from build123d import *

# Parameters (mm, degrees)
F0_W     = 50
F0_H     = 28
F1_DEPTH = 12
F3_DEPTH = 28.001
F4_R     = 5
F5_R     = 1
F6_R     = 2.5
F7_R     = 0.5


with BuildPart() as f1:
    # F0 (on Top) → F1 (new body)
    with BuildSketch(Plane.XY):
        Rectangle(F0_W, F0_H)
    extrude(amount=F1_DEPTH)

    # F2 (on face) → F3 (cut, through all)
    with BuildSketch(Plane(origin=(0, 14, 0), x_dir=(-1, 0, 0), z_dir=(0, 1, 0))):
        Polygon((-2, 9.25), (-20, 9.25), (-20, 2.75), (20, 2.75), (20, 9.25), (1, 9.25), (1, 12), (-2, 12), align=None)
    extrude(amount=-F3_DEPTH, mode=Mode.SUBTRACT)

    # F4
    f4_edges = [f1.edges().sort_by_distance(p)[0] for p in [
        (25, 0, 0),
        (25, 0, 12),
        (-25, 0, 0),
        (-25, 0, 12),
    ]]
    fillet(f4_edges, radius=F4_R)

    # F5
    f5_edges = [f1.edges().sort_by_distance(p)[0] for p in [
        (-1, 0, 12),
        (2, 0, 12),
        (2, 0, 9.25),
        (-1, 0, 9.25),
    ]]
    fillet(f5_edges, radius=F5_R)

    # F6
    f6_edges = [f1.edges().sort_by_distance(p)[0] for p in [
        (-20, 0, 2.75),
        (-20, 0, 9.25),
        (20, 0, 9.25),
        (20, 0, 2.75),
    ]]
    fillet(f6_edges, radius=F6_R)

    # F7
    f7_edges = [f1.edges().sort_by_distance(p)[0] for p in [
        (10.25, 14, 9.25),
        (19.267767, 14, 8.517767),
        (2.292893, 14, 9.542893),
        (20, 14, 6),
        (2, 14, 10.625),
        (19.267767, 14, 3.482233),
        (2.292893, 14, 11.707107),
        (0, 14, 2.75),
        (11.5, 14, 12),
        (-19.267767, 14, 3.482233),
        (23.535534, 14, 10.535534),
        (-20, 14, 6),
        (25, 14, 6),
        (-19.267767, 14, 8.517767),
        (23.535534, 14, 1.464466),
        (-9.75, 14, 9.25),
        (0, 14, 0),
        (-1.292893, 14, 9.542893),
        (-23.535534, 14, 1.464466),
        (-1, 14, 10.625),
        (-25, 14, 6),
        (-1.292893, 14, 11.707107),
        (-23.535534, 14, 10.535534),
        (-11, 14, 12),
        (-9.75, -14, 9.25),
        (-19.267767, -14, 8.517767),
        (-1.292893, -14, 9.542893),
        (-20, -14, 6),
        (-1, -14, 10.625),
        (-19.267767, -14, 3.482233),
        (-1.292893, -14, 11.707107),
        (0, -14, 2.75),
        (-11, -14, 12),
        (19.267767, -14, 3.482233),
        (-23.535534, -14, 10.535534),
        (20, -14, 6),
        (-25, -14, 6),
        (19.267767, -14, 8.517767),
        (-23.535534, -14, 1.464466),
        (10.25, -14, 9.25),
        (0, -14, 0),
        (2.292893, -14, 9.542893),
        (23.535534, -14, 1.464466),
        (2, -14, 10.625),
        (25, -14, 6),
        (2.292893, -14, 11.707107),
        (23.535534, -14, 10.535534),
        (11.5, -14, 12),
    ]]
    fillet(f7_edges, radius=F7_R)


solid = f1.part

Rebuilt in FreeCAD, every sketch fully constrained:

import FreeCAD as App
import Part
import Sketcher
from FreeCAD import Vector


def edges_at(feature, points):
    """Names of the edges that pass closest to the given points."""
    edges = feature.Shape.Edges
    near = lambda p: min(range(len(edges)), key=lambda i: edges[i].distToShape(Part.Vertex(*p))[0])
    return sorted({f"Edge{near(p) + 1}" for p in points})

doc = App.newDocument("Part")
body = doc.addObject("PartDesign::Body", "Body")

sketch1 = body.newObject("Sketcher::SketchObject", "Sketch")
sketch1.AttachmentSupport = (doc.getObject("XY_Plane"), [""])
sketch1.MapMode = "FlatFace"
sketch1.addGeometry(Part.LineSegment(Vector(-25, 14, 0), Vector(-25, -14, 0)), False)
sketch1.addGeometry(Part.LineSegment(Vector(-25, -14, 0), Vector(25, -14, 0)), False)
sketch1.addGeometry(Part.LineSegment(Vector(25, -14, 0), Vector(25, 14, 0)), False)
sketch1.addGeometry(Part.LineSegment(Vector(25, 14, 0), Vector(-25, 14, 0)), False)
sketch1.addConstraint(Sketcher.Constraint("Coincident", 0, 2, 1, 1))
sketch1.addConstraint(Sketcher.Constraint("Coincident", 1, 2, 2, 1))
sketch1.addConstraint(Sketcher.Constraint("Coincident", 2, 2, 3, 1))
sketch1.addConstraint(Sketcher.Constraint("Coincident", 3, 2, 0, 1))
sketch1.addConstraint(Sketcher.Constraint("Vertical", 0))
sketch1.addConstraint(Sketcher.Constraint("Horizontal", 1))
sketch1.addConstraint(Sketcher.Constraint("Vertical", 2))
sketch1.addConstraint(Sketcher.Constraint("Horizontal", 3))
sketch1.addConstraint(Sketcher.Constraint("Symmetric", 0, 2, 2, 2, -1, 1))
sketch1.addConstraint(Sketcher.Constraint("DistanceX", 1, 1, 1, 2, 50.0))
sketch1.addConstraint(Sketcher.Constraint("DistanceY", 0, 2, 0, 1, 28.0))
pad1 = body.newObject("PartDesign::Pad", "Pad")
pad1.Profile = sketch1
pad1.Length = 12

sketch2 = body.newObject("Sketcher::SketchObject", "Sketch001")
sketch2.AttachmentSupport = (doc.getObject("XZ_Plane"), [""])
sketch2.MapMode = "FlatFace"
sketch2.AttachmentOffset = App.Placement(Vector(0, 0, -14), App.Rotation())
sketch2.addGeometry(Part.LineSegment(Vector(2, 9.25, 0), Vector(20, 9.25, 0)), False)
sketch2.addGeometry(Part.LineSegment(Vector(20, 9.25, 0), Vector(20, 2.75, 0)), False)
sketch2.addGeometry(Part.LineSegment(Vector(20, 2.75, 0), Vector(-20, 2.75, 0)), False)
sketch2.addGeometry(Part.LineSegment(Vector(-20, 2.75, 0), Vector(-20, 9.25, 0)), False)
sketch2.addGeometry(Part.LineSegment(Vector(-20, 9.25, 0), Vector(-1, 9.25, 0)), False)
sketch2.addGeometry(Part.LineSegment(Vector(-1, 9.25, 0), Vector(-1, 12, 0)), False)
sketch2.addGeometry(Part.LineSegment(Vector(-1, 12, 0), Vector(2, 12, 0)), False)
sketch2.addGeometry(Part.LineSegment(Vector(2, 12, 0), Vector(2, 9.25, 0)), False)
sketch2.addConstraint(Sketcher.Constraint("Coincident", 0, 2, 1, 1))
sketch2.addConstraint(Sketcher.Constraint("Coincident", 1, 2, 2, 1))
sketch2.addConstraint(Sketcher.Constraint("Coincident", 2, 2, 3, 1))
sketch2.addConstraint(Sketcher.Constraint("Coincident", 3, 2, 4, 1))
sketch2.addConstraint(Sketcher.Constraint("Coincident", 4, 2, 5, 1))
sketch2.addConstraint(Sketcher.Constraint("Coincident", 5, 2, 6, 1))
sketch2.addConstraint(Sketcher.Constraint("Coincident", 6, 2, 7, 1))
sketch2.addConstraint(Sketcher.Constraint("Coincident", 7, 2, 0, 1))
sketch2.addConstraint(Sketcher.Constraint("Horizontal", 0))
sketch2.addConstraint(Sketcher.Constraint("Vertical", 1))
sketch2.addConstraint(Sketcher.Constraint("Horizontal", 2))
sketch2.addConstraint(Sketcher.Constraint("Vertical", 3))
sketch2.addConstraint(Sketcher.Constraint("Horizontal", 4))
sketch2.addConstraint(Sketcher.Constraint("Vertical", 5))
sketch2.addConstraint(Sketcher.Constraint("Horizontal", 6))
sketch2.addConstraint(Sketcher.Constraint("Vertical", 7))
sketch2.addConstraint(Sketcher.Constraint("Symmetric", 0, 2, 3, 2, -2))
sketch2.addConstraint(Sketcher.Constraint("DistanceX", 0, 1, 0, 2, 18.0))
sketch2.addConstraint(Sketcher.Constraint("DistanceX", 2, 2, 2, 1, 40.0))
sketch2.addConstraint(Sketcher.Constraint("DistanceX", 4, 1, 4, 2, 19.0))
sketch2.addConstraint(Sketcher.Constraint("DistanceY", 1, 2, 1, 1, 6.5))
sketch2.addConstraint(Sketcher.Constraint("DistanceY", -1, 1, 5, 2, 12.0))
sketch2.addConstraint(Sketcher.Constraint("DistanceY", 5, 1, 5, 2, 2.75))
pocket1 = body.newObject("PartDesign::Pocket", "Pocket")
pocket1.Profile = sketch2
pocket1.Type = "ThroughAll"
pocket1.Reversed = True
doc.recompute()

fillet = body.newObject("PartDesign::Fillet", "Fillet")
fillet.Base = (pocket1, edges_at(pocket1, [
    (25, 0, 0),
    (25, 0, 12),
    (-25, 0, 0),
    (-25, 0, 12),
]))
fillet.Radius = 5
doc.recompute()

fillet2 = body.newObject("PartDesign::Fillet", "Fillet001")
fillet2.Base = (fillet, edges_at(fillet, [
    (-1, 0, 12),
    (2, 0, 12),
    (2, 0, 9.25),
    (-1, 0, 9.25),
]))
fillet2.Radius = 1
doc.recompute()

fillet3 = body.newObject("PartDesign::Fillet", "Fillet002")
fillet3.Base = (fillet2, edges_at(fillet2, [
    (-20, 0, 2.75),
    (-20, 0, 9.25),
    (20, 0, 9.25),
    (20, 0, 2.75),
]))
fillet3.Radius = 2.5
doc.recompute()

fillet4 = body.newObject("PartDesign::Fillet", "Fillet003")
fillet4.Base = (fillet3, edges_at(fillet3, [
    (10.25, 14, 9.25),
    (19.268, 14, 8.518),
    (2.293, 14, 9.543),
    (20, 14, 6),
    (2, 14, 10.625),
    (19.268, 14, 3.482),
    (2.293, 14, 11.707),
    (0, 14, 2.75),
    (11.5, 14, 12),
    (-19.268, 14, 3.482),
    (23.536, 14, 10.536),
    (-20, 14, 6),
    (25, 14, 6),
    (-19.268, 14, 8.518),
    (23.536, 14, 1.464),
    (-9.75, 14, 9.25),
    (0, 14, 0),
    (-1.293, 14, 9.543),
    (-23.536, 14, 1.464),
    (-1, 14, 10.625),
    (-25, 14, 6),
    (-1.293, 14, 11.707),
    (-23.536, 14, 10.536),
    (-11, 14, 12),
    (-9.75, -14, 9.25),
    (-19.268, -14, 8.518),
    (-1.293, -14, 9.543),
    (-20, -14, 6),
    (-1, -14, 10.625),
    (-19.268, -14, 3.482),
    (-1.293, -14, 11.707),
    (0, -14, 2.75),
    (-11, -14, 12),
    (19.268, -14, 3.482),
    (-23.536, -14, 10.536),
    (20, -14, 6),
    (-25, -14, 6),
    (19.268, -14, 8.518),
    (-23.536, -14, 1.464),
    (10.25, -14, 9.25),
    (0, -14, 0),
    (2.293, -14, 9.543),
    (23.536, -14, 1.464),
    (2, -14, 10.625),
    (25, -14, 6),
    (2.293, -14, 11.707),
    (23.536, -14, 10.536),
    (11.5, -14, 12),
]))
fillet4.Radius = 0.5

doc.recompute()
